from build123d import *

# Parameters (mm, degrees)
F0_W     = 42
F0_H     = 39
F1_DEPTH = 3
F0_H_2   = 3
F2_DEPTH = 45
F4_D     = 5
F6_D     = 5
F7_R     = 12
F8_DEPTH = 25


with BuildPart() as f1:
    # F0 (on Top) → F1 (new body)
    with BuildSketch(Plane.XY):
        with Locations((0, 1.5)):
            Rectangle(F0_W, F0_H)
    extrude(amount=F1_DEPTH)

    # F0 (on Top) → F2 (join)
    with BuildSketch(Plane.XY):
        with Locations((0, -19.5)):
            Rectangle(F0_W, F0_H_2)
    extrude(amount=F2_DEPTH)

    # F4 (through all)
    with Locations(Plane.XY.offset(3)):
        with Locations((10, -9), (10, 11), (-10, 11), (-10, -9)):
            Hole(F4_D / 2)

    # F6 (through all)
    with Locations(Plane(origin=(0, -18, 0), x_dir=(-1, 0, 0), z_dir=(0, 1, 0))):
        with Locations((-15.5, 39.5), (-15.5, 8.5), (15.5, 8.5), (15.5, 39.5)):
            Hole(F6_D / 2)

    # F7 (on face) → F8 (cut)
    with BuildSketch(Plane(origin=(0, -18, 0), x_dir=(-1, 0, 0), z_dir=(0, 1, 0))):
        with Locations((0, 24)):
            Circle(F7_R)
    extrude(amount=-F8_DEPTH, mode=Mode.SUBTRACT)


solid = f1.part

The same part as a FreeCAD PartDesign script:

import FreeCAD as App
import Part
import Sketcher
Q = App.Units.Quantity


def add_polygon(sketch, points):
    """Adds a closed chain of lines whose ends are joined by coincident constraints."""
    first, n = sketch.GeometryCount, len(points)
    for a, b in zip(points, points[1:] + points[:1]):
        sketch.addGeometry(Part.LineSegment(App.Vector(*a, 0), App.Vector(*b, 0)), False)
    for i in range(n):
        sketch.addConstraint(Sketcher.Constraint("Coincident", first + i, 2, first + (i + 1) % n, 1))

doc = App.newDocument("Part")
body = doc.addObject("PartDesign::Body", "Body")

# Sketch on XY plane
sketch1 = body.newObject("Sketcher::SketchObject", "Sketch")
sketch1.AttachmentSupport = (doc.getObject("XY_Plane"), [""])
sketch1.MapMode = "FlatFace"
add_polygon(sketch1, [(-21, 21), (-21, -18), (21, -18), (21, 21)])  # lines 0-3
sketch1.addConstraint([
    Sketcher.Constraint("Vertical", 0),
    Sketcher.Constraint("Horizontal", 1),
    Sketcher.Constraint("Vertical", 2),
    Sketcher.Constraint("Horizontal", 3),
    Sketcher.Constraint("DistanceX", 1, 1, 1, 2, Q("42 mm")),
    Sketcher.Constraint("DistanceY", 0, 2, 0, 1, Q("39 mm")),
    Sketcher.Constraint("DistanceX", 0, 2, -1, 1, Q("21 mm")),
    Sketcher.Constraint("DistanceY", 0, 2, -1, 1, Q("18 mm")),
])
pad1 = body.newObject("PartDesign::Pad", "Pad")
pad1.Profile = sketch1
pad1.Length = 3

# Sketch on XY plane
sketch2 = body.newObject("Sketcher::SketchObject", "Sketch001")
sketch2.AttachmentSupport = (doc.getObject("XY_Plane"), [""])
sketch2.MapMode = "FlatFace"
add_polygon(sketch2, [(-21, -18), (-21, -21), (21, -21), (21, -18)])  # lines 0-3
sketch2.addConstraint([
    Sketcher.Constraint("Vertical", 0),
    Sketcher.Constraint("Horizontal", 1),
    Sketcher.Constraint("Vertical", 2),
    Sketcher.Constraint("Horizontal", 3),
    Sketcher.Constraint("DistanceX", 1, 1, 1, 2, Q("42 mm")),
    Sketcher.Constraint("DistanceY", 0, 2, 0, 1, Q("3 mm")),
    Sketcher.Constraint("DistanceX", 0, 2, -1, 1, Q("21 mm")),
    Sketcher.Constraint("DistanceY", 0, 2, -1, 1, Q("21 mm")),
])
pad2 = body.newObject("PartDesign::Pad", "Pad001")
pad2.Profile = sketch2
pad2.Length = 45

# Sketch on XY plane
sketch3 = body.newObject("Sketcher::SketchObject", "Sketch002")
sketch3.AttachmentSupport = (doc.getObject("XY_Plane"), [""])
sketch3.MapMode = "FlatFace"
sketch3.AttachmentOffset = App.Placement(App.Vector(0, 0, 3), App.Rotation())
sketch3.addGeometry([
    Part.Circle(App.Vector(10, -9, 0), App.Vector(0, 0, 1), 2.5),
    Part.Circle(App.Vector(10, 11, 0), App.Vector(0, 0, 1), 2.5),
    Part.Circle(App.Vector(-10, 11, 0), App.Vector(0, 0, 1), 2.5),
    Part.Circle(App.Vector(-10, -9, 0), App.Vector(0, 0, 1), 2.5),
], False)
sketch3.addConstraint([
    Sketcher.Constraint("Equal", 0, 1),
    Sketcher.Constraint("Equal", 1, 2),
    Sketcher.Constraint("Equal", 2, 3),
    Sketcher.Constraint("Symmetric", 1, 3, 2, 3, -2),
    Sketcher.Constraint("Symmetric", 0, 3, 3, 3, -2),
    Sketcher.Constraint("Vertical", 0, 3, 1, 3),
    Sketcher.Constraint("Diameter", 0, Q("5 mm")),
    Sketcher.Constraint("DistanceX", -1, 1, 0, 3, Q("10 mm")),
    Sketcher.Constraint("DistanceY", 0, 3, -1, 1, Q("9 mm")),
    Sketcher.Constraint("DistanceY", -1, 1, 1, 3, Q("11 mm")),
])
doc.recompute()
hole = body.newObject("PartDesign::Hole", "Hole")
hole.Profile = sketch3
hole.ThreadType = "None"
hole.Diameter = 5
hole.DepthType = "ThroughAll"

# Sketch on XZ plane
sketch4 = body.newObject("Sketcher::SketchObject", "Sketch003")
sketch4.AttachmentSupport = (doc.getObject("XZ_Plane"), [""])
sketch4.MapMode = "FlatFace"
sketch4.AttachmentOffset = App.Placement(App.Vector(0, 0, 18), App.Rotation())
sketch4.addGeometry([
    Part.Circle(App.Vector(15.5, 39.5, 0), App.Vector(0, 0, 1), 2.5),
    Part.Circle(App.Vector(15.5, 8.5, 0), App.Vector(0, 0, 1), 2.5),
    Part.Circle(App.Vector(-15.5, 8.5, 0), App.Vector(0, 0, 1), 2.5),
    Part.Circle(App.Vector(-15.5, 39.5, 0), App.Vector(0, 0, 1), 2.5),
], False)
sketch4.addConstraint([
    Sketcher.Constraint("Equal", 0, 1),
    Sketcher.Constraint("Equal", 1, 2),
    Sketcher.Constraint("Equal", 2, 3),
    Sketcher.Constraint("Symmetric", 1, 3, 2, 3, -2),
    Sketcher.Constraint("Symmetric", 0, 3, 3, 3, -2),
    Sketcher.Constraint("Vertical", 0, 3, 1, 3),
    Sketcher.Constraint("Diameter", 0, Q("5 mm")),
    Sketcher.Constraint("DistanceY", 1, 3, 0, 3, Q("31 mm")),
    Sketcher.Constraint("DistanceX", 2, 3, 1, 3, Q("31 mm")),
    Sketcher.Constraint("DistanceY", -1, 1, 0, 3, Q("39.5 mm")),
])
doc.recompute()
hole2 = body.newObject("PartDesign::Hole", "Hole001")
hole2.Profile = sketch4
hole2.ThreadType = "None"
hole2.Diameter = 5
hole2.DepthType = "ThroughAll"
hole2.Reversed = True

# Sketch on XZ plane
sketch5 = body.newObject("Sketcher::SketchObject", "Sketch004")
sketch5.AttachmentSupport = (doc.getObject("XZ_Plane"), [""])
sketch5.MapMode = "FlatFace"
sketch5.AttachmentOffset = App.Placement(App.Vector(0, 0, 18), App.Rotation())
sketch5.addGeometry(Part.Circle(App.Vector(0, 24, 0), App.Vector(0, 0, 1), 12), False)
sketch5.addConstraint([
    Sketcher.Constraint("PointOnObject", 0, 3, -2),
    Sketcher.Constraint("Diameter", 0, Q("24 mm")),
    Sketcher.Constraint("DistanceY", -1, 1, 0, 3, Q("24 mm")),
])
pocket1 = body.newObject("PartDesign::Pocket", "Pocket")
pocket1.Profile = sketch5
pocket1.Length = 25
pocket1.Reversed = True

doc.recompute()
